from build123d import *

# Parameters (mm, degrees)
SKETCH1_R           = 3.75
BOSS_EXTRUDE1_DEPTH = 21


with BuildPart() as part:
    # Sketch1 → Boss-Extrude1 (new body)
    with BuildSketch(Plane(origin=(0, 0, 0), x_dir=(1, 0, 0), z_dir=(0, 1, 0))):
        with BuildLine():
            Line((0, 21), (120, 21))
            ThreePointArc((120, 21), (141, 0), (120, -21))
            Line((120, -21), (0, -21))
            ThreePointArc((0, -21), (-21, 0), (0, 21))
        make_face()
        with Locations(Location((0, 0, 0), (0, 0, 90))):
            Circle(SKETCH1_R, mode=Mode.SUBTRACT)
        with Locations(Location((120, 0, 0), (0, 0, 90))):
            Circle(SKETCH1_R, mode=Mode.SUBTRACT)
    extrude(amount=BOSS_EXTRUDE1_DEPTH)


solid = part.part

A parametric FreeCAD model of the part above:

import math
import FreeCAD as App
import Part
import Sketcher

V = App.Vector
Q = App.Units.Quantity

doc = App.newDocument("Part")
body = doc.addObject("PartDesign::Body", "Body")

# Sketch on XZ plane
sketch1 = body.newObject("Sketcher::SketchObject", "Sketch")
sketch1.AttachmentSupport = (doc.getObject("XZ_Plane"), [""])
sketch1.MapMode = "FlatFace"
sketch1.addGeometry([
    Part.LineSegment(V(120, -21, 0), V(0, -21, 0)),  # 0
    Part.ArcOfCircle(Part.Circle(V(0, 0, 0), V(0, 0, 1), 21), math.radians(90), math.radians(270)),  # 1
    Part.LineSegment(V(0, 21, 0), V(120, 21, 0)),  # 2
    Part.ArcOfCircle(Part.Circle(V(120, 0, 0), V(0, 0, 1), 21), math.radians(-90), math.radians(90)),  # 3
    Part.Circle(V(120, 0, 0), V(0, 0, 1), 3.8),  # 4
    Part.Circle(V(0, 0, 0), V(0, 0, 1), 3.8),  # 5
], False)
sketch1.addConstraint([
    Sketcher.Constraint("Tangent", 0, 2, 1, 2),
    Sketcher.Constraint("Tangent", 1, 1, 2, 1),
    Sketcher.Constraint("Tangent", 2, 2, 3, 2),
    Sketcher.Constraint("Tangent", 3, 1, 0, 1),
    Sketcher.Constraint("Horizontal", 0),
    Sketcher.Constraint("Horizontal", 2),
    Sketcher.Constraint("Coincident", 1, 3, -1, 1),
    Sketcher.Constraint("Coincident", 5, 3, -1, 1),
    Sketcher.Constraint("Coincident", 4, 3, 3, 3),
    Sketcher.Constraint("Equal", 4, 5),
    Sketcher.Constraint("Radius", 1, Q("21 mm")),
    Sketcher.Constraint("Diameter", 4, Q("7.5 mm")),
    Sketcher.Constraint("DistanceX", 0, 2, 0, 1, Q("120 mm")),
])
pad1 = body.newObject("PartDesign::Pad", "Pad")
pad1.Profile = sketch1
pad1.Length = 21
pad1.Reversed = True

doc.recompute()
